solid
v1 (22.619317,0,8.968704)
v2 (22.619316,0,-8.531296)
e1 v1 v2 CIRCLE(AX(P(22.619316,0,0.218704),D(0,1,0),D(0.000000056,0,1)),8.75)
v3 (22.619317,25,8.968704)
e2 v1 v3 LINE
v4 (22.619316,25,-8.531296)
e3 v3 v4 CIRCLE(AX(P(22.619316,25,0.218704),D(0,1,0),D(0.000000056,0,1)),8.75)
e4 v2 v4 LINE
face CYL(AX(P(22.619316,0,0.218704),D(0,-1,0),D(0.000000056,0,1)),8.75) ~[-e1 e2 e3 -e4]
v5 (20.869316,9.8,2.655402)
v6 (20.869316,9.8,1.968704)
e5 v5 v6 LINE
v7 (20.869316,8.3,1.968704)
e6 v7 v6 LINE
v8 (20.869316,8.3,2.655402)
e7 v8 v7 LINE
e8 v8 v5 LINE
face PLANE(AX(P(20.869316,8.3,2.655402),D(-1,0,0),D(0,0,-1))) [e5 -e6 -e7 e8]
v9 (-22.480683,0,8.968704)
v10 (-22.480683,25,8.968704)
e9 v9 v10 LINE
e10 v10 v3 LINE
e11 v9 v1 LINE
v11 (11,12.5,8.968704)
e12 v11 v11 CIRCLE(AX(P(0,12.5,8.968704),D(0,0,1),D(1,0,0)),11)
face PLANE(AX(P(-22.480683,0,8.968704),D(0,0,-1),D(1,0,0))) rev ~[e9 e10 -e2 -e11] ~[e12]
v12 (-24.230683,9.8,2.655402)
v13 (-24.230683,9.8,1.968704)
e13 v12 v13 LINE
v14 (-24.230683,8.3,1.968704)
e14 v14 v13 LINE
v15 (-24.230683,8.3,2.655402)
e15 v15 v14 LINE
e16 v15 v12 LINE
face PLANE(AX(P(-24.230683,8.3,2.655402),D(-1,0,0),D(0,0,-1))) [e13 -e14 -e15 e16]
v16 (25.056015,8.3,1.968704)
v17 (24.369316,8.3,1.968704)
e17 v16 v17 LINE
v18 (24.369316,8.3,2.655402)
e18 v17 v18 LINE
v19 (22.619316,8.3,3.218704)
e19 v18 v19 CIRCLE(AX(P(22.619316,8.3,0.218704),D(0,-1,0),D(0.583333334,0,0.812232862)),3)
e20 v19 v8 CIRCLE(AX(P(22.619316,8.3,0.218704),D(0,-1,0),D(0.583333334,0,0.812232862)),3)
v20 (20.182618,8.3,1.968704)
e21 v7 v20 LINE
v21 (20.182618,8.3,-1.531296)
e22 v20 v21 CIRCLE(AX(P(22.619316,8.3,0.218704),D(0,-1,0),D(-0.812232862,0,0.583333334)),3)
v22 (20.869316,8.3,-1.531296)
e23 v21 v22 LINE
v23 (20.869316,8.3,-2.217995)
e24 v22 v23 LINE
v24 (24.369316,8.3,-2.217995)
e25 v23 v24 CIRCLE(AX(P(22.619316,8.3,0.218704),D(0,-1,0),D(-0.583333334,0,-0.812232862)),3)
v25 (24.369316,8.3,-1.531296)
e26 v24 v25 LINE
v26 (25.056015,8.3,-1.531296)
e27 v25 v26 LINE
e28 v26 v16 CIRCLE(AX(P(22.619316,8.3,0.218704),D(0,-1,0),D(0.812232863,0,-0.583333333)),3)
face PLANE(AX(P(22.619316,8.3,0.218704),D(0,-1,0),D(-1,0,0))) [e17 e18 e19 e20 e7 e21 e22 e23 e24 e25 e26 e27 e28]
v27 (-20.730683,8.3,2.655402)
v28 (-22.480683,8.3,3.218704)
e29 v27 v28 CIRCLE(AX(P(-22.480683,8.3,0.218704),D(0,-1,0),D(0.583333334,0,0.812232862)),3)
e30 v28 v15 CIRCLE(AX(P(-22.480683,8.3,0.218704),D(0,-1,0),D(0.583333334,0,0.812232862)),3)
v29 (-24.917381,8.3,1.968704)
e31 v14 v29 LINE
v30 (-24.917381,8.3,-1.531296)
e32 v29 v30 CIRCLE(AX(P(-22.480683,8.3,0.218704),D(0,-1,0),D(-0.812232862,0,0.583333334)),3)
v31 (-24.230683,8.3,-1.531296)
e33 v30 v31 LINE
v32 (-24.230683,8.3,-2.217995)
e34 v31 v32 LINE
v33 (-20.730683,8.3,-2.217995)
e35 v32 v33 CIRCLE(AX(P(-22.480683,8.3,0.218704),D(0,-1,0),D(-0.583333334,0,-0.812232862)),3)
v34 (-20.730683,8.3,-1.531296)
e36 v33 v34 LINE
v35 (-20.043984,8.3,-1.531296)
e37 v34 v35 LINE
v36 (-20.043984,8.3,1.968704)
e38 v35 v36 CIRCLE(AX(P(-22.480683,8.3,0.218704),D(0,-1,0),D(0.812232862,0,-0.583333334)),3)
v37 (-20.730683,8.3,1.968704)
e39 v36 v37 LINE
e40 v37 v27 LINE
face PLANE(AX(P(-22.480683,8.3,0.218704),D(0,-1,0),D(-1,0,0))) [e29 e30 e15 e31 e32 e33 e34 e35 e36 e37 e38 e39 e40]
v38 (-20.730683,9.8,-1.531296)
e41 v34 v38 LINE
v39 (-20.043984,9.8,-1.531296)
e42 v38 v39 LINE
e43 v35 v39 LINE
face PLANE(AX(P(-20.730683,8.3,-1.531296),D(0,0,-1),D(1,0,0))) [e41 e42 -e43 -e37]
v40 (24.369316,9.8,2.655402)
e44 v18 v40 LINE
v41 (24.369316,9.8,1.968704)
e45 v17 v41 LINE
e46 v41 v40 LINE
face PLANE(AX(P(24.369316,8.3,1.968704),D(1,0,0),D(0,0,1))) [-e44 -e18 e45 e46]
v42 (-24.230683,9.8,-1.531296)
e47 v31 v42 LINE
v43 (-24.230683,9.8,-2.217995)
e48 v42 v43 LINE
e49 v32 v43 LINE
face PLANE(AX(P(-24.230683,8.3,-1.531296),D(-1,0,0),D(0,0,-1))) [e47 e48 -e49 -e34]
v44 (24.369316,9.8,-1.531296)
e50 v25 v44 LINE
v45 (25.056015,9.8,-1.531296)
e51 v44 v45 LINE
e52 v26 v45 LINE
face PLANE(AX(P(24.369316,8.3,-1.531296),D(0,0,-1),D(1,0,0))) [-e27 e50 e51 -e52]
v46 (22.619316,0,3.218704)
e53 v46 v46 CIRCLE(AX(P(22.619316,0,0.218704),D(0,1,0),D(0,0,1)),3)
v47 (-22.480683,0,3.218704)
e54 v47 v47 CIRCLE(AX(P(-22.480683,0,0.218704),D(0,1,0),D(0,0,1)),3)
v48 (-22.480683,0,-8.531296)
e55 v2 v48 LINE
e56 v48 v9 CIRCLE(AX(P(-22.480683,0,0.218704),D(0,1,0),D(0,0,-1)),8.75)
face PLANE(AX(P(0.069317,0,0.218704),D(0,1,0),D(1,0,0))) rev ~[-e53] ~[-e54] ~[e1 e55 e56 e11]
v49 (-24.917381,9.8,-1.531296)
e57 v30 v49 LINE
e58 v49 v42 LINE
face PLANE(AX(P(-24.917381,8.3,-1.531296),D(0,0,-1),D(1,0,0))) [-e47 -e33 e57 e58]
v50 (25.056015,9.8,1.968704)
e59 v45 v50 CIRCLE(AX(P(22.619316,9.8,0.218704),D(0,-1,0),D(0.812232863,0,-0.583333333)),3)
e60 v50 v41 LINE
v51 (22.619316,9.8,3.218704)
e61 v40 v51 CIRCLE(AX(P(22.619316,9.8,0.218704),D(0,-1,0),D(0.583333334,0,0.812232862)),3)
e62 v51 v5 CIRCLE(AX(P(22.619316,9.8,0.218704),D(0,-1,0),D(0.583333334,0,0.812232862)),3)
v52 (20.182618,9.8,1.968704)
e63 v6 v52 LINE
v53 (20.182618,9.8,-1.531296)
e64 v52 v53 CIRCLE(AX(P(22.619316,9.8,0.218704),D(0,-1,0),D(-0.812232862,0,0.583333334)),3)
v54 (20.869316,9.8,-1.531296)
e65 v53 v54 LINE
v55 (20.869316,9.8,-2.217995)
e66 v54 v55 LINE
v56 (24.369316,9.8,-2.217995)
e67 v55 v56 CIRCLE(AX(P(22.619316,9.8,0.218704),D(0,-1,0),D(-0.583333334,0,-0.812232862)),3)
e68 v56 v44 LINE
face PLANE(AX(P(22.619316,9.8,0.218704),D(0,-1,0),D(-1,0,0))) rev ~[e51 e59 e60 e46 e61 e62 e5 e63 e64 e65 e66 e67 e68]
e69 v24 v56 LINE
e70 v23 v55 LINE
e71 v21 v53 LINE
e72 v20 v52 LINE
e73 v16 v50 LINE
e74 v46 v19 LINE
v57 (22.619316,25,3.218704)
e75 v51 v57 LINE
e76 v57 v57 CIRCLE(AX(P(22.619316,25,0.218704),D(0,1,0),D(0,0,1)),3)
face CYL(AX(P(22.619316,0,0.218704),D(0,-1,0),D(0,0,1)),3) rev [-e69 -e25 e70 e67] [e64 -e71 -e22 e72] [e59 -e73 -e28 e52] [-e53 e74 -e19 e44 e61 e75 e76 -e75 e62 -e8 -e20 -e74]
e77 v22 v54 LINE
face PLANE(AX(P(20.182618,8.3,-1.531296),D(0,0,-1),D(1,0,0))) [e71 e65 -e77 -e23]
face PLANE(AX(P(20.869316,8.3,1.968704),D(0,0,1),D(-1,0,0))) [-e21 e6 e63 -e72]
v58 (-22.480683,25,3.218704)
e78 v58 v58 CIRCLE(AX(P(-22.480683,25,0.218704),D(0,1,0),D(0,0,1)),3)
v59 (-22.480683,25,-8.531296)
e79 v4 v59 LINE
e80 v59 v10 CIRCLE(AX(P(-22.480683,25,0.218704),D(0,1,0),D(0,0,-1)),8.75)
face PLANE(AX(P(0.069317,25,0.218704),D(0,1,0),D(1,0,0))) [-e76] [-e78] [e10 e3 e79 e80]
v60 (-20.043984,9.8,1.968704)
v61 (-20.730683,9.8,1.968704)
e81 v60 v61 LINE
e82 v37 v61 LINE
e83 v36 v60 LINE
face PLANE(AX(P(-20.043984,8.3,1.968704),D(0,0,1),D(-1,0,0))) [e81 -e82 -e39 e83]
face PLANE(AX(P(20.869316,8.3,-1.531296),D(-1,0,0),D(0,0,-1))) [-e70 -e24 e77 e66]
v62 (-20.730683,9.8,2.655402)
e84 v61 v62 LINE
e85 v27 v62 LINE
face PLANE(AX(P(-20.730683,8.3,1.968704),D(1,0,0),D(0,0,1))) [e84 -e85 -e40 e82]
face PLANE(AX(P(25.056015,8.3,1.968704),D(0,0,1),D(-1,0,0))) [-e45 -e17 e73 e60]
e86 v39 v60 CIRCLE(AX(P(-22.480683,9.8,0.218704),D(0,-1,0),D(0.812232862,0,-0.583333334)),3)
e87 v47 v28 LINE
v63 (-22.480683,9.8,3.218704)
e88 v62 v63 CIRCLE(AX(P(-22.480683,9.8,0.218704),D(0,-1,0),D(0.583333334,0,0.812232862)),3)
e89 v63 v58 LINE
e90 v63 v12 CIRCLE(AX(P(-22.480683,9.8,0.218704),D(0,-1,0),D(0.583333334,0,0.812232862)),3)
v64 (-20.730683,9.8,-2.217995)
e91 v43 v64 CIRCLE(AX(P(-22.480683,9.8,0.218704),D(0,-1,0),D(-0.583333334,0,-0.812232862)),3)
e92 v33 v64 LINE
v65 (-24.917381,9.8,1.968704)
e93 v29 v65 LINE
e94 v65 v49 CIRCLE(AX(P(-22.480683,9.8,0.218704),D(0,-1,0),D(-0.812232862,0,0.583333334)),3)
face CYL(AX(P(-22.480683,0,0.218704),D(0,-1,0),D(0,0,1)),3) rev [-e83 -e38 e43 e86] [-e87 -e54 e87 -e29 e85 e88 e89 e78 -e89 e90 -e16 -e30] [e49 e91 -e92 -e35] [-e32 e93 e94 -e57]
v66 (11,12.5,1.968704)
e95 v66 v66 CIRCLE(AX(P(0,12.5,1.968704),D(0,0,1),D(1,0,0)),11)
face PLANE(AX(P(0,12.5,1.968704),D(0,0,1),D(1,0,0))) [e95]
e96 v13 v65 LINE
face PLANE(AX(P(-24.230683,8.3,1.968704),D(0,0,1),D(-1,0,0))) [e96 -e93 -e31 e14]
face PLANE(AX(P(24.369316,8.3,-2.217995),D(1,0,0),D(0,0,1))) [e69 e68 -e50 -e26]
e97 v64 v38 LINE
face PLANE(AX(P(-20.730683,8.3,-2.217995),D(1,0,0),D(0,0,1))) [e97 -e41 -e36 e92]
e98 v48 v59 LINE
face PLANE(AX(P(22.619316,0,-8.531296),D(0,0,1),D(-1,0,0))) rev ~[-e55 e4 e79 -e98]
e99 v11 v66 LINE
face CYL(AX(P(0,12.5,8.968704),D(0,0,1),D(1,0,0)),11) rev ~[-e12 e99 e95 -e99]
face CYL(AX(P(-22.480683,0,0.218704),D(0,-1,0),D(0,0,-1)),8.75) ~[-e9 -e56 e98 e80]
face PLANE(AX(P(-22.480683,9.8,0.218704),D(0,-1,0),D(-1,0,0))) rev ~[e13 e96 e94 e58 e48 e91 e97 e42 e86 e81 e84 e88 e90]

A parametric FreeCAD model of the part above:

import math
import FreeCAD as App
import Part
import Sketcher
from FreeCAD import Vector
Q = App.Units.Quantity

doc = App.newDocument("Part")
body = doc.addObject("PartDesign::Body", "Body")

# Sketch on XZ plane
sketch1 = doc.addObject("Sketcher::SketchObject", "Sketch")
body.addObject(sketch1)
sketch1.AttachmentSupport = (doc.XZ_Plane, [""])
sketch1.MapMode = "FlatFace"
sketch1.addGeometry([
    Part.LineSegment(Vector(-22.480683, 8.968704, 0), Vector(22.619317, 8.968704, 0)),  # 0
    Part.ArcOfCircle(Part.Circle(Vector(22.619316, 0.218704, 0), Vector(0, 0, 1), 8.75), math.radians(-90), math.radians(89.999997)),  # 1
    Part.LineSegment(Vector(22.619316, -8.531296, 0), Vector(-22.480683, -8.531296, 0)),  # 2
    Part.ArcOfCircle(Part.Circle(Vector(-22.480683, 0.218704, 0), Vector(0, 0, 1), 8.75), math.radians(90.000003), math.radians(270)),  # 3
    Part.Circle(Vector(-22.480683, 0.218704, 0), Vector(0, 0, 1), 3),  # 4
    Part.Circle(Vector(22.619316, 0.218704, 0), Vector(0, 0, 1), 3),  # 5
], False)
sketch1.addConstraint([
    Sketcher.Constraint("Tangent", 0, 2, 1, 2),
    Sketcher.Constraint("Tangent", 1, 1, 2, 1),
    Sketcher.Constraint("Tangent", 2, 2, 3, 2),
    Sketcher.Constraint("Tangent", 3, 1, 0, 1),
    Sketcher.Constraint("Horizontal", 0),
    Sketcher.Constraint("Horizontal", 2),
    Sketcher.Constraint("Coincident", 4, 3, 3, 3),
    Sketcher.Constraint("Coincident", 5, 3, 1, 3),
    Sketcher.Constraint("Equal", 4, 5),
    Sketcher.Constraint("Diameter", 4, Q("6 mm")),
    Sketcher.Constraint("Radius", 1, Q("8.75 mm")),
    Sketcher.Constraint("DistanceX", 0, 1, 0, 2, Q("45.1 mm")),
    Sketcher.Constraint("DistanceX", -1, 1, 1, 3, Q("22.619316 mm")),
    Sketcher.Constraint("DistanceY", -1, 1, 1, 3, Q("0.218704 mm")),
])
pad1 = doc.addObject("PartDesign::Pad", "Pad")
body.addObject(pad1)
pad1.Profile = sketch1
pad1.Length = 25
pad1.Reversed = True

# Sketch on XY plane
sketch2 = doc.addObject("Sketcher::SketchObject", "Sketch001")
body.addObject(sketch2)
sketch2.AttachmentSupport = (doc.XY_Plane, [""])
sketch2.MapMode = "FlatFace"
sketch2.AttachmentOffset = App.Placement(Vector(0, 0, 8.968704), App.Rotation())
sketch2.addGeometry(Part.Circle(Vector(0, 12.5, 0), Vector(0, 0, 1), 11), False)
sketch2.addConstraint([
    Sketcher.Constraint("PointOnObject", 0, 3, -2),
    Sketcher.Constraint("Diameter", 0, Q("22 mm")),
    Sketcher.Constraint("DistanceY", -1, 1, 0, 3, Q("12.5 mm")),
])
pocket1 = doc.addObject("PartDesign::Pocket", "Pocket")
body.addObject(pocket1)
pocket1.Profile = sketch2
pocket1.Length = 7

# Sketch on XZ plane
sketch3 = doc.addObject("Sketcher::SketchObject", "Sketch002")
body.addObject(sketch3)
sketch3.AttachmentSupport = (doc.XZ_Plane, [""])
sketch3.MapMode = "FlatFace"
sketch3.AttachmentOffset = App.Placement(Vector(0, 0, -8.3), App.Rotation())
sketch3.addGeometry([
    Part.LineSegment(Vector(-20.730683, -1.531296, 0), Vector(-20.730683, -2.217995, 0)),  # 0
    Part.ArcOfCircle(Part.Circle(Vector(-22.480683, 0.218704, 0), Vector(0, 0, 1), 3), math.radians(-125.685335), math.radians(-54.314665)),  # 1
    Part.LineSegment(Vector(-24.230683, -2.217995, 0), Vector(-24.230683, -1.531296, 0)),  # 2
    Part.LineSegment(Vector(-24.230683, -1.531296, 0), Vector(-24.917381, -1.531296, 0)),  # 3
    Part.ArcOfCircle(Part.Circle(Vector(-22.480683, 0.218704, 0), Vector(0, 0, 1), 3), math.radians(144.314665), math.radians(215.685335)),  # 4
    Part.LineSegment(Vector(-24.917381, 1.968704, 0), Vector(-24.230683, 1.968704, 0)),  # 5
    Part.LineSegment(Vector(-24.230683, 1.968704, 0), Vector(-24.230683, 2.655402, 0)),  # 6
    Part.ArcOfCircle(Part.Circle(Vector(-22.480683, 0.218704, 0), Vector(0, 0, 1), 3), math.radians(54.314665), math.radians(125.685335)),  # 7
    Part.LineSegment(Vector(-20.730683, 2.655402, 0), Vector(-20.730683, 1.968704, 0)),  # 8
    Part.LineSegment(Vector(-20.730683, 1.968704, 0), Vector(-20.043984, 1.968704, 0)),  # 9
    Part.ArcOfCircle(Part.Circle(Vector(-22.480683, 0.218704, 0), Vector(0, 0, 1), 3), math.radians(-35.685335), math.radians(35.685335)),  # 10
    Part.LineSegment(Vector(-20.043984, -1.531296, 0), Vector(-20.730683, -1.531296, 0)),  # 11
], False)
sketch3.addConstraint([
    Sketcher.Constraint("Coincident", 0, 2, 1, 2),
    Sketcher.Constraint("Coincident", 1, 1, 2, 1),
    Sketcher.Constraint("Coincident", 2, 2, 3, 1),
    Sketcher.Constraint("Coincident", 3, 2, 4, 2),
    Sketcher.Constraint("Coincident", 4, 1, 5, 1),
    Sketcher.Constraint("Coincident", 5, 2, 6, 1),
    Sketcher.Constraint("Coincident", 6, 2, 7, 2),
    Sketcher.Constraint("Coincident", 7, 1, 8, 1),
    Sketcher.Constraint("Coincident", 8, 2, 9, 1),
    Sketcher.Constraint("Coincident", 9, 2, 10, 2),
    Sketcher.Constraint("Coincident", 10, 1, 11, 1),
    Sketcher.Constraint("Coincident", 11, 2, 0, 1),
    Sketcher.Constraint("Vertical", 0),
    Sketcher.Constraint("Vertical", 2),
    Sketcher.Constraint("Horizontal", 3),
    Sketcher.Constraint("Horizontal", 5),
    Sketcher.Constraint("Vertical", 6),
    Sketcher.Constraint("Vertical", 8),
    Sketcher.Constraint("Horizontal", 9),
    Sketcher.Constraint("Horizontal", 11),
    Sketcher.Constraint("Coincident", 4, 3, 1, 3),
    Sketcher.Constraint("Coincident", 7, 3, 1, 3),
    Sketcher.Constraint("Coincident", 10, 3, 1, 3),
    Sketcher.Constraint("Equal", 1, 4),
    Sketcher.Constraint("Equal", 4, 7),
    Sketcher.Constraint("Equal", 7, 10),
    Sketcher.Constraint("Horizontal", 0, 2, 1, 1),
    Sketcher.Constraint("Horizontal", 6, 2, 7, 1),
    Sketcher.Constraint("Horizontal", 5, 2, 8, 2),
    Sketcher.Constraint("Horizontal", 3, 2, 10, 1),
    Sketcher.Constraint("Vertical", 3, 2, 4, 1),
    Sketcher.Constraint("Vertical", 2, 2, 5, 2),
    Sketcher.Constraint("Equal", 11, 0),
    Sketcher.Constraint("Radius", 1, Q("3 mm")),
    Sketcher.Constraint("DistanceX", 1, 1, 0, 2, Q("3.5 mm")),
    Sketcher.Constraint("DistanceX", 3, 2, -1, 1, Q("24.917381 mm")),
    Sketcher.Constraint("DistanceY", -1, 1, 1, 3, Q("0.218704 mm")),
])
pad2 = doc.addObject("PartDesign::Pad", "Pad001")
body.addObject(pad2)
pad2.Profile = sketch3
pad2.Length = 1.5
pad2.Reversed = True

# Sketch on XZ plane
sketch4 = doc.addObject("Sketcher::SketchObject", "Sketch003")
body.addObject(sketch4)
sketch4.AttachmentSupport = (doc.XZ_Plane, [""])
sketch4.MapMode = "FlatFace"
sketch4.AttachmentOffset = App.Placement(Vector(0, 0, -8.3), App.Rotation())
sketch4.addGeometry([
    Part.LineSegment(Vector(24.369316, -1.531296, 0), Vector(24.369316, -2.217995, 0)),  # 0
    Part.ArcOfCircle(Part.Circle(Vector(22.619316, 0.218704, 0), Vector(0, 0, 1), 3), math.radians(-125.685335), math.radians(-54.314665)),  # 1
    Part.LineSegment(Vector(20.869316, -2.217995, 0), Vector(20.869316, -1.531296, 0)),  # 2
    Part.LineSegment(Vector(20.869316, -1.531296, 0), Vector(20.182618, -1.531296, 0)),  # 3
    Part.ArcOfCircle(Part.Circle(Vector(22.619316, 0.218704, 0), Vector(0, 0, 1), 3), math.radians(144.314665), math.radians(215.685335)),  # 4
    Part.LineSegment(Vector(20.182618, 1.968704, 0), Vector(20.869316, 1.968704, 0)),  # 5
    Part.LineSegment(Vector(20.869316, 1.968704, 0), Vector(20.869316, 2.655402, 0)),  # 6
    Part.ArcOfCircle(Part.Circle(Vector(22.619316, 0.218704, 0), Vector(0, 0, 1), 3), math.radians(54.314665), math.radians(125.685335)),  # 7
    Part.LineSegment(Vector(24.369316, 2.655402, 0), Vector(24.369316, 1.968704, 0)),  # 8
    Part.LineSegment(Vector(24.369316, 1.968704, 0), Vector(25.056015, 1.968704, 0)),  # 9
    Part.ArcOfCircle(Part.Circle(Vector(22.619316, 0.218704, 0), Vector(0, 0, 1), 3), math.radians(-35.685335), math.radians(35.685335)),  # 10
    Part.LineSegment(Vector(25.056015, -1.531296, 0), Vector(24.369316, -1.531296, 0)),  # 11
], False)
sketch4.addConstraint([
    Sketcher.Constraint("Coincident", 0, 2, 1, 2),
    Sketcher.Constraint("Coincident", 1, 1, 2, 1),
    Sketcher.Constraint("Coincident", 2, 2, 3, 1),
    Sketcher.Constraint("Coincident", 3, 2, 4, 2),
    Sketcher.Constraint("Coincident", 4, 1, 5, 1),
    Sketcher.Constraint("Coincident", 5, 2, 6, 1),
    Sketcher.Constraint("Coincident", 6, 2, 7, 2),
    Sketcher.Constraint("Coincident", 7, 1, 8, 1),
    Sketcher.Constraint("Coincident", 8, 2, 9, 1),
    Sketcher.Constraint("Coincident", 9, 2, 10, 2),
    Sketcher.Constraint("Coincident", 10, 1, 11, 1),
    Sketcher.Constraint("Coincident", 11, 2, 0, 1),
    Sketcher.Constraint("Vertical", 0),
    Sketcher.Constraint("Vertical", 2),
    Sketcher.Constraint("Horizontal", 3),
    Sketcher.Constraint("Horizontal", 5),
    Sketcher.Constraint("Vertical", 6),
    Sketcher.Constraint("Vertical", 8),
    Sketcher.Constraint("Horizontal", 9),
    Sketcher.Constraint("Horizontal", 11),
    Sketcher.Constraint("Coincident", 4, 3, 1, 3),
    Sketcher.Constraint("Coincident", 7, 3, 1, 3),
    Sketcher.Constraint("Coincident", 10, 3, 1, 3),
    Sketcher.Constraint("Equal", 1, 4),
    Sketcher.Constraint("Equal", 4, 7),
    Sketcher.Constraint("Equal", 7, 10),
    Sketcher.Constraint("Horizontal", 0, 2, 1, 1),
    Sketcher.Constraint("Horizontal", 6, 2, 7, 1),
    Sketcher.Constraint("Horizontal", 5, 2, 8, 2),
    Sketcher.Constraint("Horizontal", 3, 2, 10, 1),
    Sketcher.Constraint("Vertical", 3, 2, 4, 1),
    Sketcher.Constraint("Vertical", 2, 2, 5, 2),
    Sketcher.Constraint("Equal", 11, 0),
    Sketcher.Constraint("Radius", 1, Q("3 mm")),
    Sketcher.Constraint("DistanceX", 1, 1, 0, 2, Q("3.5 mm")),
    Sketcher.Constraint("DistanceX", -1, 1, 1, 3, Q("22.619316 mm")),
    Sketcher.Constraint("DistanceY", -1, 1, 1, 3, Q("0.218704 mm")),
])
pad3 = doc.addObject("PartDesign::Pad", "Pad002")
body.addObject(pad3)
pad3.Profile = sketch4
pad3.Length = 1.5
pad3.Reversed = True

doc.recompute()
